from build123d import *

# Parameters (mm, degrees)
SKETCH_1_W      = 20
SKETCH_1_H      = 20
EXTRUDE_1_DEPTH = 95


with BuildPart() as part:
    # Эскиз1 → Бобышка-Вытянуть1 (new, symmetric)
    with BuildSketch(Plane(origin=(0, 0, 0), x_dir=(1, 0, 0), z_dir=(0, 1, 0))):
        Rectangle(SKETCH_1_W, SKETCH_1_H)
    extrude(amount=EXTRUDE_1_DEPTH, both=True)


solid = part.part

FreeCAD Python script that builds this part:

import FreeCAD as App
import Part
import Sketcher

V = App.Vector
Q = App.Units.Quantity


def add_polygon(sketch, points):
    """Adds a closed chain of lines whose ends are joined by coincident constraints."""
    first, n = sketch.GeometryCount, len(points)
    for a, b in zip(points, points[1:] + points[:1]):
        sketch.addGeometry(Part.LineSegment(App.Vector(*a, 0), App.Vector(*b, 0)), False)
    for i in range(n):
        sketch.addConstraint(Sketcher.Constraint("Coincident", first + i, 2, first + (i + 1) % n, 1))

doc = App.newDocument("Part")
params = doc.addObject("Spreadsheet::Sheet", "Params")
for row, (alias, value) in enumerate([
    ("sketch1_width", "20 mm"),
    ("pad1_length", "190 mm"),
], start=1):
    params.set(f"A{row}", alias)
    params.set(f"B{row}", "=" + value)
    params.setAlias(f"B{row}", alias)

body = doc.addObject("PartDesign::Body", "Body")

sketch1 = body.newObject("Sketcher::SketchObject", "Sketch")
sketch1.AttachmentSupport = (doc.getObject("XZ_Plane"), [""])
sketch1.MapMode = "FlatFace"
add_polygon(sketch1, [(-10, -10), (-10, 10), (10, 10), (10, -10)])
sketch1.addConstraint([
    Sketcher.Constraint("Vertical", 0),
    Sketcher.Constraint("Horizontal", 1),
    Sketcher.Constraint("Vertical", 2),
    Sketcher.Constraint("Horizontal", 3),
    Sketcher.Constraint("Symmetric", 0, 2, 2, 2, -1, 1),
    Sketcher.Constraint("Equal", 3, 0),
    Sketcher.Constraint("DistanceX", 1, 1, 1, 2, Q("20 mm")),
])
sketch1.setExpression("Constraints[10]", "Params.sketch1_width")
pad1 = body.newObject("PartDesign::Pad", "Pad")
pad1.Profile = sketch1
pad1.setExpression("Length", "Params.pad1_length")
pad1.Midplane = True

doc.recompute()
